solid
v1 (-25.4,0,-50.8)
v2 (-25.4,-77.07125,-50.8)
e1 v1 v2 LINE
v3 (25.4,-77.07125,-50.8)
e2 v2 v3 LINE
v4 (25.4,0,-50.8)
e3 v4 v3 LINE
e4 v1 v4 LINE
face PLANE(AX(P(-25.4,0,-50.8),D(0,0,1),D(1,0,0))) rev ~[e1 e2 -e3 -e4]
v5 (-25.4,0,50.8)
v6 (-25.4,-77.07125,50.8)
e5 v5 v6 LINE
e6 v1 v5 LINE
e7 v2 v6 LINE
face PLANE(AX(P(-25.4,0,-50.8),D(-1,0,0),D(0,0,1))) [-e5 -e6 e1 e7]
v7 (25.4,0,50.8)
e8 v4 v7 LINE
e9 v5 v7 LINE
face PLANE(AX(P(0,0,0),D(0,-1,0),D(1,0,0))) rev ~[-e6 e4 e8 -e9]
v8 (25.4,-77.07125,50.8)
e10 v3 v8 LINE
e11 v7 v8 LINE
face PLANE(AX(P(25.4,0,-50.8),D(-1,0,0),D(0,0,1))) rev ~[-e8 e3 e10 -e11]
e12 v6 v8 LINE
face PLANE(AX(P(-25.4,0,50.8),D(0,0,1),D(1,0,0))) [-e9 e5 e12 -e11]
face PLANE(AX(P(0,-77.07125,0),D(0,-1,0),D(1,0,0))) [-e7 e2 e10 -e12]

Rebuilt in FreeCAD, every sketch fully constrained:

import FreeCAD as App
import Part
import Sketcher

V = App.Vector
Q = App.Units.Quantity

doc = App.newDocument("Part")
body = doc.addObject("PartDesign::Body", "Body")

sketch1 = body.newObject("Sketcher::SketchObject", "Sketch")
sketch1.AttachmentSupport = (doc.getObject("XZ_Plane"), [""])
sketch1.MapMode = "FlatFace"
sketch1.addGeometry([
    Part.LineSegment(V(-25.4, 50.8, 0), V(-25.4, -50.8, 0)),
    Part.LineSegment(V(-25.4, -50.8, 0), V(25.4, -50.8, 0)),
    Part.LineSegment(V(25.4, -50.8, 0), V(25.4, 50.8, 0)),
    Part.LineSegment(V(25.4, 50.8, 0), V(-25.4, 50.8, 0)),
], False)
sketch1.addConstraint([
    Sketcher.Constraint("Coincident", 0, 2, 1, 1),
    Sketcher.Constraint("Coincident", 1, 2, 2, 1),
    Sketcher.Constraint("Coincident", 2, 2, 3, 1),
    Sketcher.Constraint("Coincident", 3, 2, 0, 1),
    Sketcher.Constraint("Vertical", 0),
    Sketcher.Constraint("Horizontal", 1),
    Sketcher.Constraint("Vertical", 2),
    Sketcher.Constraint("Horizontal", 3),
    Sketcher.Constraint("Symmetric", 0, 2, 2, 2, -1, 1),
    Sketcher.Constraint("DistanceX", 1, 1, 1, 2, Q("2 in")),
    Sketcher.Constraint("DistanceY", 0, 2, 0, 1, Q("4 in")),
])
pad1 = body.newObject("PartDesign::Pad", "Pad")
pad1.Profile = sketch1
pad1.Length = 77.07125

doc.recompute()
